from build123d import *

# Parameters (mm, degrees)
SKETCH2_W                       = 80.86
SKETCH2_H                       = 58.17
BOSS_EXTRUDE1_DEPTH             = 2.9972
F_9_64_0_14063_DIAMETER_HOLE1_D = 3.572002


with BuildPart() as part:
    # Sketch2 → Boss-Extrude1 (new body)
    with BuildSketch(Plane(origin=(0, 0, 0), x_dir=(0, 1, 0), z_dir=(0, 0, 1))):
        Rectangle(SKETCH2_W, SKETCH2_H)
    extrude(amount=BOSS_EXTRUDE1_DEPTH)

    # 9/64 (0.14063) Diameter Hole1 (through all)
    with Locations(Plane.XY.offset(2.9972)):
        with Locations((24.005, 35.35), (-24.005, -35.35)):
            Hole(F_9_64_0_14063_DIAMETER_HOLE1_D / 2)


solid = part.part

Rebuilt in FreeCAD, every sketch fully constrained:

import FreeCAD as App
import Part
import Sketcher

V = App.Vector
Q = App.Units.Quantity

doc = App.newDocument("Part")
body = doc.addObject("PartDesign::Body", "Body")

# Sketch on XY plane
sketch1 = body.newObject("Sketcher::SketchObject", "Sketch")
sketch1.AttachmentSupport = (doc.getObject("XY_Plane"), [""])
sketch1.MapMode = "FlatFace"
sketch1.addGeometry([
    Part.LineSegment(V(-29, -40, 0), V(29, -40, 0)),
    Part.LineSegment(V(29, -40, 0), V(29, 40, 0)),
    Part.LineSegment(V(29, 40, 0), V(-29, 40, 0)),
    Part.LineSegment(V(-29, 40, 0), V(-29, -40, 0)),
], False)
sketch1.addConstraint([
    Sketcher.Constraint("Coincident", 0, 2, 1, 1),
    Sketcher.Constraint("Coincident", 1, 2, 2, 1),
    Sketcher.Constraint("Coincident", 2, 2, 3, 1),
    Sketcher.Constraint("Coincident", 3, 2, 0, 1),
    Sketcher.Constraint("Horizontal", 0),
    Sketcher.Constraint("Vertical", 1),
    Sketcher.Constraint("Horizontal", 2),
    Sketcher.Constraint("Vertical", 3),
    Sketcher.Constraint("Symmetric", 0, 2, 2, 2, -1, 1),
    Sketcher.Constraint("DistanceX", 0, 1, 0, 2, Q("58.17 mm")),
    Sketcher.Constraint("DistanceY", 1, 1, 1, 2, Q("80.86 mm")),
])
pad1 = body.newObject("PartDesign::Pad", "Pad")
pad1.Profile = sketch1
pad1.Length = Q("0.118 in")

# Sketch on XY plane
sketch2 = body.newObject("Sketcher::SketchObject", "Sketch001")
sketch2.AttachmentSupport = (doc.getObject("XY_Plane"), [""])
sketch2.MapMode = "FlatFace"
sketch2.AttachmentOffset = App.Placement(V(0, 0, 0.118 * 25.4), App.Rotation())
sketch2.addGeometry([
    Part.Circle(V(24, 35.4, 0), V(0, 0, 1), 1.8),
    Part.Circle(V(-24, -35.4, 0), V(0, 0, 1), 1.8),
], False)
sketch2.addConstraint([
    Sketcher.Constraint("Equal", 0, 1),
    Sketcher.Constraint("Symmetric", 0, 3, 1, 3, -1, 1),
    Sketcher.Constraint("Diameter", 0, Q("3.572002 mm")),
    Sketcher.Constraint("DistanceX", -1, 1, 0, 3, Q("24.005 mm")),
    Sketcher.Constraint("DistanceY", -1, 1, 0, 3, Q("35.35 mm")),
])
doc.recompute()
hole = body.newObject("PartDesign::Hole", "Hole")
hole.Profile = sketch2
hole.ThreadType = "None"
hole.Diameter = 3.572002
hole.DepthType = "ThroughAll"

doc.recompute()
